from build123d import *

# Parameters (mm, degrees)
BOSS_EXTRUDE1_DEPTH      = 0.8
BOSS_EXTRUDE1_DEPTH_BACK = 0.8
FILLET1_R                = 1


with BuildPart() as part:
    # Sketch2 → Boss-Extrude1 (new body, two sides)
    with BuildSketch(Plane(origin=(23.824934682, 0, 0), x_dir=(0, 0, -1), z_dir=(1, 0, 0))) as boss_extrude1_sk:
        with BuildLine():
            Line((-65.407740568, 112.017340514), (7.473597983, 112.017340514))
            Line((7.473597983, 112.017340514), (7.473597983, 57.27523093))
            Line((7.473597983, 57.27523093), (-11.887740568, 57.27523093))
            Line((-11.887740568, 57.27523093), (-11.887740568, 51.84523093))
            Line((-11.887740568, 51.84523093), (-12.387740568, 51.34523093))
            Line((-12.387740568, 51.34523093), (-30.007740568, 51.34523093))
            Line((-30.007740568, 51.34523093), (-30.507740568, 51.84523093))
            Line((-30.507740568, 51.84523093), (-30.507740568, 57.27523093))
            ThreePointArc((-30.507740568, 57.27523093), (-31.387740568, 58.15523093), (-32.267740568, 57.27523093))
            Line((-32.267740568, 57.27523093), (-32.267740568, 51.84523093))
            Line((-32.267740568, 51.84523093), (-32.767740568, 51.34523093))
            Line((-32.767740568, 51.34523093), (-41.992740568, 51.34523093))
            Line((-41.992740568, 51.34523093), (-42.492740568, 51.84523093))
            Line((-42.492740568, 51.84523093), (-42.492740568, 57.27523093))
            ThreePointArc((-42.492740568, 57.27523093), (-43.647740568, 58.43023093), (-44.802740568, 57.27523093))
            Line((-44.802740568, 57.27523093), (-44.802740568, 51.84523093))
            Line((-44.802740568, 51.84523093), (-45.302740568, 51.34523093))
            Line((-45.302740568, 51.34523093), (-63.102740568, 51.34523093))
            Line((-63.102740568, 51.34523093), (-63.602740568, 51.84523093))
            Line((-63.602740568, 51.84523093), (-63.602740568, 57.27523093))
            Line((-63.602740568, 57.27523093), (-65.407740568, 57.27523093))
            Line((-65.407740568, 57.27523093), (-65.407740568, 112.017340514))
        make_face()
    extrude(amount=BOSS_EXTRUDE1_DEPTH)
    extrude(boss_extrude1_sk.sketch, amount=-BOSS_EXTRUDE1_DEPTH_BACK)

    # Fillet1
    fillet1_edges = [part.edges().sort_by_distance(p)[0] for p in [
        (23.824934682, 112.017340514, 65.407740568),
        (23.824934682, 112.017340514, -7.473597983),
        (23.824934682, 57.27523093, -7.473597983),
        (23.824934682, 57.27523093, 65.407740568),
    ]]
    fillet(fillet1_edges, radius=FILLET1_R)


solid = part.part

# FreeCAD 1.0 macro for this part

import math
import FreeCAD as App
import Part
import Sketcher

V = App.Vector
Q = App.Units.Quantity


def edges_at(feature, points):
    """Names of the edges that pass closest to the given points."""
    edges = feature.Shape.Edges
    near = lambda p: min(range(len(edges)), key=lambda i: edges[i].distToShape(Part.Vertex(*p))[0])
    return sorted({f"Edge{near(p) + 1}" for p in points})

doc = App.newDocument("Part")
params = doc.addObject("Spreadsheet::Sheet", "Params")
for row, (alias, value) in enumerate([
    ("sketch1_radius", "0.88 mm"),
    ("sketch1_height", "17.8 mm"),
    ("sketch1_width", "5.43 mm"),
    ("sketch1_height2", "17.62 mm"),
    ("pad1_length", "0.8 mm"),
    ("pad1_length2", "0.8 mm"),
    ("fillet_radius", "1 mm"),
], start=1):
    params.set(f"A{row}", alias)
    params.set(f"B{row}", "=" + value)
    params.setAlias(f"B{row}", alias)

body = doc.addObject("PartDesign::Body", "Body")

sketch1 = doc.addObject("Sketcher::SketchObject", "Sketch")
body.addObject(sketch1)
sketch1.AttachmentSupport = (doc.YZ_Plane, [""])
sketch1.MapMode = "FlatFace"
sketch1.AttachmentOffset = App.Placement(V(0, 0, 23.824935), App.Rotation())
sketch1.addGeometry(Part.LineSegment(V(112.017341, -7.473598, 0), V(112.017341, 65.407741, 0)), False)
sketch1.addGeometry(Part.LineSegment(V(112.017341, 65.407741, 0), V(57.275231, 65.407741, 0)), False)
sketch1.addGeometry(Part.LineSegment(V(57.275231, 65.407741, 0), V(57.275231, 63.602741, 0)), False)
sketch1.addGeometry(Part.LineSegment(V(57.275231, 63.602741, 0), V(51.845231, 63.602741, 0)), False)
sketch1.addGeometry(Part.LineSegment(V(51.845231, 63.602741, 0), V(51.345231, 63.102741, 0)), False)
sketch1.addGeometry(Part.LineSegment(V(51.345231, 63.102741, 0), V(51.345231, 45.302741, 0)), False)
sketch1.addGeometry(Part.LineSegment(V(51.345231, 45.302741, 0), V(51.845231, 44.802741, 0)), False)
sketch1.addGeometry(Part.LineSegment(V(51.845231, 44.802741, 0), V(57.275231, 44.802741, 0)), False)
sketch1.addGeometry(Part.ArcOfCircle(Part.Circle(V(57.275231, 43.647741, 0), V(0, 0, 1), 1.155), math.radians(-90), math.radians(90)), False)
sketch1.addGeometry(Part.LineSegment(V(57.275231, 42.492741, 0), V(51.845231, 42.492741, 0)), False)
sketch1.addGeometry(Part.LineSegment(V(51.845231, 42.492741, 0), V(51.345231, 41.992741, 0)), False)
sketch1.addGeometry(Part.LineSegment(V(51.345231, 41.992741, 0), V(51.345231, 32.767741, 0)), False)
sketch1.addGeometry(Part.LineSegment(V(51.345231, 32.767741, 0), V(51.845231, 32.267741, 0)), False)
sketch1.addGeometry(Part.LineSegment(V(51.845231, 32.267741, 0), V(57.275231, 32.267741, 0)), False)
sketch1.addGeometry(Part.ArcOfCircle(Part.Circle(V(57.275231, 31.387741, 0), V(0, 0, 1), 0.88), math.radians(-90), math.radians(90)), False)
sketch1.addGeometry(Part.LineSegment(V(57.275231, 30.507741, 0), V(51.845231, 30.507741, 0)), False)
sketch1.addGeometry(Part.LineSegment(V(51.845231, 30.507741, 0), V(51.345231, 30.007741, 0)), False)
sketch1.addGeometry(Part.LineSegment(V(51.345231, 30.007741, 0), V(51.345231, 12.387741, 0)), False)
sketch1.addGeometry(Part.LineSegment(V(51.345231, 12.387741, 0), V(51.845231, 11.887741, 0)), False)
sketch1.addGeometry(Part.LineSegment(V(51.845231, 11.887741, 0), V(57.275231, 11.887741, 0)), False)
sketch1.addGeometry(Part.LineSegment(V(57.275231, 11.887741, 0), V(57.275231, -7.473598, 0)), False)
sketch1.addGeometry(Part.LineSegment(V(57.275231, -7.473598, 0), V(112.017341, -7.473598, 0)), False)
sketch1.addConstraint(Sketcher.Constraint("Coincident", 0, 2, 1, 1))
sketch1.addConstraint(Sketcher.Constraint("Coincident", 1, 2, 2, 1))
sketch1.addConstraint(Sketcher.Constraint("Coincident", 2, 2, 3, 1))
sketch1.addConstraint(Sketcher.Constraint("Coincident", 3, 2, 4, 1))
sketch1.addConstraint(Sketcher.Constraint("Coincident", 4, 2, 5, 1))
sketch1.addConstraint(Sketcher.Constraint("Coincident", 5, 2, 6, 1))
sketch1.addConstraint(Sketcher.Constraint("Coincident", 6, 2, 7, 1))
sketch1.addConstraint(Sketcher.Constraint("Tangent", 7, 2, 8, 2))
sketch1.addConstraint(Sketcher.Constraint("Tangent", 8, 1, 9, 1))
sketch1.addConstraint(Sketcher.Constraint("Coincident", 9, 2, 10, 1))
sketch1.addConstraint(Sketcher.Constraint("Coincident", 10, 2, 11, 1))
sketch1.addConstraint(Sketcher.Constraint("Coincident", 11, 2, 12, 1))
sketch1.addConstraint(Sketcher.Constraint("Coincident", 12, 2, 13, 1))
sketch1.addConstraint(Sketcher.Constraint("Tangent", 13, 2, 14, 2))
sketch1.addConstraint(Sketcher.Constraint("Tangent", 14, 1, 15, 1))
sketch1.addConstraint(Sketcher.Constraint("Coincident", 15, 2, 16, 1))
sketch1.addConstraint(Sketcher.Constraint("Coincident", 16, 2, 17, 1))
sketch1.addConstraint(Sketcher.Constraint("Coincident", 17, 2, 18, 1))
sketch1.addConstraint(Sketcher.Constraint("Coincident", 18, 2, 19, 1))
sketch1.addConstraint(Sketcher.Constraint("Coincident", 19, 2, 20, 1))
sketch1.addConstraint(Sketcher.Constraint("Coincident", 20, 2, 21, 1))
sketch1.addConstraint(Sketcher.Constraint("Coincident", 21, 2, 0, 1))
sketch1.addConstraint(Sketcher.Constraint("Vertical", 0))
sketch1.addConstraint(Sketcher.Constraint("Horizontal", 1))
sketch1.addConstraint(Sketcher.Constraint("Vertical", 2))
sketch1.addConstraint(Sketcher.Constraint("Horizontal", 3))
sketch1.addConstraint(Sketcher.Constraint("Vertical", 5))
sketch1.addConstraint(Sketcher.Constraint("Horizontal", 7))
sketch1.addConstraint(Sketcher.Constraint("Horizontal", 9))
sketch1.addConstraint(Sketcher.Constraint("Vertical", 11))
sketch1.addConstraint(Sketcher.Constraint("Horizontal", 13))
sketch1.addConstraint(Sketcher.Constraint("Horizontal", 15))
sketch1.addConstraint(Sketcher.Constraint("Vertical", 17))
sketch1.addConstraint(Sketcher.Constraint("Horizontal", 19))
sketch1.addConstraint(Sketcher.Constraint("Vertical", 20))
sketch1.addConstraint(Sketcher.Constraint("Horizontal", 21))
sketch1.addConstraint(Sketcher.Constraint("Perpendicular", 4, 6))
sketch1.addConstraint(Sketcher.Constraint("Perpendicular", 6, 10))
sketch1.addConstraint(Sketcher.Constraint("Perpendicular", 10, 12))
sketch1.addConstraint(Sketcher.Constraint("Perpendicular", 12, 16))
sketch1.addConstraint(Sketcher.Constraint("Perpendicular", 16, 18))
sketch1.addConstraint(Sketcher.Constraint("Vertical", 8, 3, 14, 3))
sketch1.addConstraint(Sketcher.Constraint("Vertical", 14, 3, 1, 2))
sketch1.addConstraint(Sketcher.Constraint("Vertical", 3, 2, 6, 2))
sketch1.addConstraint(Sketcher.Constraint("Vertical", 6, 2, 9, 2))
sketch1.addConstraint(Sketcher.Constraint("Vertical", 5, 2, 10, 2))
sketch1.addConstraint(Sketcher.Constraint("Vertical", 9, 2, 12, 2))
sketch1.addConstraint(Sketcher.Constraint("Vertical", 12, 2, 15, 2))
sketch1.addConstraint(Sketcher.Constraint("Vertical", 11, 2, 16, 2))
sketch1.addConstraint(Sketcher.Constraint("Vertical", 15, 2, 18, 2))
sketch1.addConstraint(Sketcher.Constraint("Vertical", 14, 1, 19, 2))
sketch1.addConstraint(Sketcher.Constraint("Equal", 4, 6))
sketch1.addConstraint(Sketcher.Constraint("Radius", 14, Q("0.88 mm")))
sketch1.addConstraint(Sketcher.Constraint("DistanceY", 5, 2, 5, 1, Q("17.8 mm")))
sketch1.addConstraint(Sketcher.Constraint("Radius", 8, Q("1.155 mm")))
sketch1.addConstraint(Sketcher.Constraint("DistanceY", 17, 2, 14, 3, Q("19 mm")))
sketch1.addConstraint(Sketcher.Constraint("DistanceX", 3, 2, 3, 1, Q("5.43 mm")))
sketch1.addConstraint(Sketcher.Constraint("DistanceY", 17, 2, 17, 1, Q("17.62 mm")))
sketch1.addConstraint(Sketcher.Constraint("DistanceY", 2, 2, 2, 1, Q("1.805 mm")))
sketch1.addConstraint(Sketcher.Constraint("DistanceY", 11, 2, 11, 1, Q("9.225 mm")))
sketch1.addConstraint(Sketcher.Constraint("DistanceX", 1, 2, 1, 1, Q("54.74211 mm")))
sketch1.addConstraint(Sketcher.Constraint("DistanceY", 0, 1, 0, 2, Q("72.881339 mm")))
sketch1.addConstraint(Sketcher.Constraint("DistanceX", -1, 1, 8, 3, Q("57.275231 mm")))
sketch1.addConstraint(Sketcher.Constraint("DistanceY", -1, 1, 8, 3, Q("43.647741 mm")))
sketch1.setExpression("Constraints[52]", "Params.sketch1_radius")
sketch1.setExpression("Constraints[53]", "Params.sketch1_height")
sketch1.setExpression("Constraints[56]", "Params.sketch1_width")
sketch1.setExpression("Constraints[57]", "Params.sketch1_height2")
pad1 = doc.addObject("PartDesign::Pad", "Pad")
body.addObject(pad1)
pad1.Profile = sketch1
pad1.Type = "TwoLengths"
pad1.setExpression("Length", "Params.pad1_length")
pad1.setExpression("Length2", "Params.pad1_length2")
doc.recompute()

fillet = doc.addObject("PartDesign::Fillet", "Fillet")
body.addObject(fillet)
fillet.Base = (pad1, edges_at(pad1, [
    (23.825, 112.017, 65.408),
    (23.825, 112.017, -7.474),
    (23.825, 57.275, -7.474),
    (23.825, 57.275, 65.408),
]))
fillet.setExpression("Radius", "Params.fillet_radius")

doc.recompute()
